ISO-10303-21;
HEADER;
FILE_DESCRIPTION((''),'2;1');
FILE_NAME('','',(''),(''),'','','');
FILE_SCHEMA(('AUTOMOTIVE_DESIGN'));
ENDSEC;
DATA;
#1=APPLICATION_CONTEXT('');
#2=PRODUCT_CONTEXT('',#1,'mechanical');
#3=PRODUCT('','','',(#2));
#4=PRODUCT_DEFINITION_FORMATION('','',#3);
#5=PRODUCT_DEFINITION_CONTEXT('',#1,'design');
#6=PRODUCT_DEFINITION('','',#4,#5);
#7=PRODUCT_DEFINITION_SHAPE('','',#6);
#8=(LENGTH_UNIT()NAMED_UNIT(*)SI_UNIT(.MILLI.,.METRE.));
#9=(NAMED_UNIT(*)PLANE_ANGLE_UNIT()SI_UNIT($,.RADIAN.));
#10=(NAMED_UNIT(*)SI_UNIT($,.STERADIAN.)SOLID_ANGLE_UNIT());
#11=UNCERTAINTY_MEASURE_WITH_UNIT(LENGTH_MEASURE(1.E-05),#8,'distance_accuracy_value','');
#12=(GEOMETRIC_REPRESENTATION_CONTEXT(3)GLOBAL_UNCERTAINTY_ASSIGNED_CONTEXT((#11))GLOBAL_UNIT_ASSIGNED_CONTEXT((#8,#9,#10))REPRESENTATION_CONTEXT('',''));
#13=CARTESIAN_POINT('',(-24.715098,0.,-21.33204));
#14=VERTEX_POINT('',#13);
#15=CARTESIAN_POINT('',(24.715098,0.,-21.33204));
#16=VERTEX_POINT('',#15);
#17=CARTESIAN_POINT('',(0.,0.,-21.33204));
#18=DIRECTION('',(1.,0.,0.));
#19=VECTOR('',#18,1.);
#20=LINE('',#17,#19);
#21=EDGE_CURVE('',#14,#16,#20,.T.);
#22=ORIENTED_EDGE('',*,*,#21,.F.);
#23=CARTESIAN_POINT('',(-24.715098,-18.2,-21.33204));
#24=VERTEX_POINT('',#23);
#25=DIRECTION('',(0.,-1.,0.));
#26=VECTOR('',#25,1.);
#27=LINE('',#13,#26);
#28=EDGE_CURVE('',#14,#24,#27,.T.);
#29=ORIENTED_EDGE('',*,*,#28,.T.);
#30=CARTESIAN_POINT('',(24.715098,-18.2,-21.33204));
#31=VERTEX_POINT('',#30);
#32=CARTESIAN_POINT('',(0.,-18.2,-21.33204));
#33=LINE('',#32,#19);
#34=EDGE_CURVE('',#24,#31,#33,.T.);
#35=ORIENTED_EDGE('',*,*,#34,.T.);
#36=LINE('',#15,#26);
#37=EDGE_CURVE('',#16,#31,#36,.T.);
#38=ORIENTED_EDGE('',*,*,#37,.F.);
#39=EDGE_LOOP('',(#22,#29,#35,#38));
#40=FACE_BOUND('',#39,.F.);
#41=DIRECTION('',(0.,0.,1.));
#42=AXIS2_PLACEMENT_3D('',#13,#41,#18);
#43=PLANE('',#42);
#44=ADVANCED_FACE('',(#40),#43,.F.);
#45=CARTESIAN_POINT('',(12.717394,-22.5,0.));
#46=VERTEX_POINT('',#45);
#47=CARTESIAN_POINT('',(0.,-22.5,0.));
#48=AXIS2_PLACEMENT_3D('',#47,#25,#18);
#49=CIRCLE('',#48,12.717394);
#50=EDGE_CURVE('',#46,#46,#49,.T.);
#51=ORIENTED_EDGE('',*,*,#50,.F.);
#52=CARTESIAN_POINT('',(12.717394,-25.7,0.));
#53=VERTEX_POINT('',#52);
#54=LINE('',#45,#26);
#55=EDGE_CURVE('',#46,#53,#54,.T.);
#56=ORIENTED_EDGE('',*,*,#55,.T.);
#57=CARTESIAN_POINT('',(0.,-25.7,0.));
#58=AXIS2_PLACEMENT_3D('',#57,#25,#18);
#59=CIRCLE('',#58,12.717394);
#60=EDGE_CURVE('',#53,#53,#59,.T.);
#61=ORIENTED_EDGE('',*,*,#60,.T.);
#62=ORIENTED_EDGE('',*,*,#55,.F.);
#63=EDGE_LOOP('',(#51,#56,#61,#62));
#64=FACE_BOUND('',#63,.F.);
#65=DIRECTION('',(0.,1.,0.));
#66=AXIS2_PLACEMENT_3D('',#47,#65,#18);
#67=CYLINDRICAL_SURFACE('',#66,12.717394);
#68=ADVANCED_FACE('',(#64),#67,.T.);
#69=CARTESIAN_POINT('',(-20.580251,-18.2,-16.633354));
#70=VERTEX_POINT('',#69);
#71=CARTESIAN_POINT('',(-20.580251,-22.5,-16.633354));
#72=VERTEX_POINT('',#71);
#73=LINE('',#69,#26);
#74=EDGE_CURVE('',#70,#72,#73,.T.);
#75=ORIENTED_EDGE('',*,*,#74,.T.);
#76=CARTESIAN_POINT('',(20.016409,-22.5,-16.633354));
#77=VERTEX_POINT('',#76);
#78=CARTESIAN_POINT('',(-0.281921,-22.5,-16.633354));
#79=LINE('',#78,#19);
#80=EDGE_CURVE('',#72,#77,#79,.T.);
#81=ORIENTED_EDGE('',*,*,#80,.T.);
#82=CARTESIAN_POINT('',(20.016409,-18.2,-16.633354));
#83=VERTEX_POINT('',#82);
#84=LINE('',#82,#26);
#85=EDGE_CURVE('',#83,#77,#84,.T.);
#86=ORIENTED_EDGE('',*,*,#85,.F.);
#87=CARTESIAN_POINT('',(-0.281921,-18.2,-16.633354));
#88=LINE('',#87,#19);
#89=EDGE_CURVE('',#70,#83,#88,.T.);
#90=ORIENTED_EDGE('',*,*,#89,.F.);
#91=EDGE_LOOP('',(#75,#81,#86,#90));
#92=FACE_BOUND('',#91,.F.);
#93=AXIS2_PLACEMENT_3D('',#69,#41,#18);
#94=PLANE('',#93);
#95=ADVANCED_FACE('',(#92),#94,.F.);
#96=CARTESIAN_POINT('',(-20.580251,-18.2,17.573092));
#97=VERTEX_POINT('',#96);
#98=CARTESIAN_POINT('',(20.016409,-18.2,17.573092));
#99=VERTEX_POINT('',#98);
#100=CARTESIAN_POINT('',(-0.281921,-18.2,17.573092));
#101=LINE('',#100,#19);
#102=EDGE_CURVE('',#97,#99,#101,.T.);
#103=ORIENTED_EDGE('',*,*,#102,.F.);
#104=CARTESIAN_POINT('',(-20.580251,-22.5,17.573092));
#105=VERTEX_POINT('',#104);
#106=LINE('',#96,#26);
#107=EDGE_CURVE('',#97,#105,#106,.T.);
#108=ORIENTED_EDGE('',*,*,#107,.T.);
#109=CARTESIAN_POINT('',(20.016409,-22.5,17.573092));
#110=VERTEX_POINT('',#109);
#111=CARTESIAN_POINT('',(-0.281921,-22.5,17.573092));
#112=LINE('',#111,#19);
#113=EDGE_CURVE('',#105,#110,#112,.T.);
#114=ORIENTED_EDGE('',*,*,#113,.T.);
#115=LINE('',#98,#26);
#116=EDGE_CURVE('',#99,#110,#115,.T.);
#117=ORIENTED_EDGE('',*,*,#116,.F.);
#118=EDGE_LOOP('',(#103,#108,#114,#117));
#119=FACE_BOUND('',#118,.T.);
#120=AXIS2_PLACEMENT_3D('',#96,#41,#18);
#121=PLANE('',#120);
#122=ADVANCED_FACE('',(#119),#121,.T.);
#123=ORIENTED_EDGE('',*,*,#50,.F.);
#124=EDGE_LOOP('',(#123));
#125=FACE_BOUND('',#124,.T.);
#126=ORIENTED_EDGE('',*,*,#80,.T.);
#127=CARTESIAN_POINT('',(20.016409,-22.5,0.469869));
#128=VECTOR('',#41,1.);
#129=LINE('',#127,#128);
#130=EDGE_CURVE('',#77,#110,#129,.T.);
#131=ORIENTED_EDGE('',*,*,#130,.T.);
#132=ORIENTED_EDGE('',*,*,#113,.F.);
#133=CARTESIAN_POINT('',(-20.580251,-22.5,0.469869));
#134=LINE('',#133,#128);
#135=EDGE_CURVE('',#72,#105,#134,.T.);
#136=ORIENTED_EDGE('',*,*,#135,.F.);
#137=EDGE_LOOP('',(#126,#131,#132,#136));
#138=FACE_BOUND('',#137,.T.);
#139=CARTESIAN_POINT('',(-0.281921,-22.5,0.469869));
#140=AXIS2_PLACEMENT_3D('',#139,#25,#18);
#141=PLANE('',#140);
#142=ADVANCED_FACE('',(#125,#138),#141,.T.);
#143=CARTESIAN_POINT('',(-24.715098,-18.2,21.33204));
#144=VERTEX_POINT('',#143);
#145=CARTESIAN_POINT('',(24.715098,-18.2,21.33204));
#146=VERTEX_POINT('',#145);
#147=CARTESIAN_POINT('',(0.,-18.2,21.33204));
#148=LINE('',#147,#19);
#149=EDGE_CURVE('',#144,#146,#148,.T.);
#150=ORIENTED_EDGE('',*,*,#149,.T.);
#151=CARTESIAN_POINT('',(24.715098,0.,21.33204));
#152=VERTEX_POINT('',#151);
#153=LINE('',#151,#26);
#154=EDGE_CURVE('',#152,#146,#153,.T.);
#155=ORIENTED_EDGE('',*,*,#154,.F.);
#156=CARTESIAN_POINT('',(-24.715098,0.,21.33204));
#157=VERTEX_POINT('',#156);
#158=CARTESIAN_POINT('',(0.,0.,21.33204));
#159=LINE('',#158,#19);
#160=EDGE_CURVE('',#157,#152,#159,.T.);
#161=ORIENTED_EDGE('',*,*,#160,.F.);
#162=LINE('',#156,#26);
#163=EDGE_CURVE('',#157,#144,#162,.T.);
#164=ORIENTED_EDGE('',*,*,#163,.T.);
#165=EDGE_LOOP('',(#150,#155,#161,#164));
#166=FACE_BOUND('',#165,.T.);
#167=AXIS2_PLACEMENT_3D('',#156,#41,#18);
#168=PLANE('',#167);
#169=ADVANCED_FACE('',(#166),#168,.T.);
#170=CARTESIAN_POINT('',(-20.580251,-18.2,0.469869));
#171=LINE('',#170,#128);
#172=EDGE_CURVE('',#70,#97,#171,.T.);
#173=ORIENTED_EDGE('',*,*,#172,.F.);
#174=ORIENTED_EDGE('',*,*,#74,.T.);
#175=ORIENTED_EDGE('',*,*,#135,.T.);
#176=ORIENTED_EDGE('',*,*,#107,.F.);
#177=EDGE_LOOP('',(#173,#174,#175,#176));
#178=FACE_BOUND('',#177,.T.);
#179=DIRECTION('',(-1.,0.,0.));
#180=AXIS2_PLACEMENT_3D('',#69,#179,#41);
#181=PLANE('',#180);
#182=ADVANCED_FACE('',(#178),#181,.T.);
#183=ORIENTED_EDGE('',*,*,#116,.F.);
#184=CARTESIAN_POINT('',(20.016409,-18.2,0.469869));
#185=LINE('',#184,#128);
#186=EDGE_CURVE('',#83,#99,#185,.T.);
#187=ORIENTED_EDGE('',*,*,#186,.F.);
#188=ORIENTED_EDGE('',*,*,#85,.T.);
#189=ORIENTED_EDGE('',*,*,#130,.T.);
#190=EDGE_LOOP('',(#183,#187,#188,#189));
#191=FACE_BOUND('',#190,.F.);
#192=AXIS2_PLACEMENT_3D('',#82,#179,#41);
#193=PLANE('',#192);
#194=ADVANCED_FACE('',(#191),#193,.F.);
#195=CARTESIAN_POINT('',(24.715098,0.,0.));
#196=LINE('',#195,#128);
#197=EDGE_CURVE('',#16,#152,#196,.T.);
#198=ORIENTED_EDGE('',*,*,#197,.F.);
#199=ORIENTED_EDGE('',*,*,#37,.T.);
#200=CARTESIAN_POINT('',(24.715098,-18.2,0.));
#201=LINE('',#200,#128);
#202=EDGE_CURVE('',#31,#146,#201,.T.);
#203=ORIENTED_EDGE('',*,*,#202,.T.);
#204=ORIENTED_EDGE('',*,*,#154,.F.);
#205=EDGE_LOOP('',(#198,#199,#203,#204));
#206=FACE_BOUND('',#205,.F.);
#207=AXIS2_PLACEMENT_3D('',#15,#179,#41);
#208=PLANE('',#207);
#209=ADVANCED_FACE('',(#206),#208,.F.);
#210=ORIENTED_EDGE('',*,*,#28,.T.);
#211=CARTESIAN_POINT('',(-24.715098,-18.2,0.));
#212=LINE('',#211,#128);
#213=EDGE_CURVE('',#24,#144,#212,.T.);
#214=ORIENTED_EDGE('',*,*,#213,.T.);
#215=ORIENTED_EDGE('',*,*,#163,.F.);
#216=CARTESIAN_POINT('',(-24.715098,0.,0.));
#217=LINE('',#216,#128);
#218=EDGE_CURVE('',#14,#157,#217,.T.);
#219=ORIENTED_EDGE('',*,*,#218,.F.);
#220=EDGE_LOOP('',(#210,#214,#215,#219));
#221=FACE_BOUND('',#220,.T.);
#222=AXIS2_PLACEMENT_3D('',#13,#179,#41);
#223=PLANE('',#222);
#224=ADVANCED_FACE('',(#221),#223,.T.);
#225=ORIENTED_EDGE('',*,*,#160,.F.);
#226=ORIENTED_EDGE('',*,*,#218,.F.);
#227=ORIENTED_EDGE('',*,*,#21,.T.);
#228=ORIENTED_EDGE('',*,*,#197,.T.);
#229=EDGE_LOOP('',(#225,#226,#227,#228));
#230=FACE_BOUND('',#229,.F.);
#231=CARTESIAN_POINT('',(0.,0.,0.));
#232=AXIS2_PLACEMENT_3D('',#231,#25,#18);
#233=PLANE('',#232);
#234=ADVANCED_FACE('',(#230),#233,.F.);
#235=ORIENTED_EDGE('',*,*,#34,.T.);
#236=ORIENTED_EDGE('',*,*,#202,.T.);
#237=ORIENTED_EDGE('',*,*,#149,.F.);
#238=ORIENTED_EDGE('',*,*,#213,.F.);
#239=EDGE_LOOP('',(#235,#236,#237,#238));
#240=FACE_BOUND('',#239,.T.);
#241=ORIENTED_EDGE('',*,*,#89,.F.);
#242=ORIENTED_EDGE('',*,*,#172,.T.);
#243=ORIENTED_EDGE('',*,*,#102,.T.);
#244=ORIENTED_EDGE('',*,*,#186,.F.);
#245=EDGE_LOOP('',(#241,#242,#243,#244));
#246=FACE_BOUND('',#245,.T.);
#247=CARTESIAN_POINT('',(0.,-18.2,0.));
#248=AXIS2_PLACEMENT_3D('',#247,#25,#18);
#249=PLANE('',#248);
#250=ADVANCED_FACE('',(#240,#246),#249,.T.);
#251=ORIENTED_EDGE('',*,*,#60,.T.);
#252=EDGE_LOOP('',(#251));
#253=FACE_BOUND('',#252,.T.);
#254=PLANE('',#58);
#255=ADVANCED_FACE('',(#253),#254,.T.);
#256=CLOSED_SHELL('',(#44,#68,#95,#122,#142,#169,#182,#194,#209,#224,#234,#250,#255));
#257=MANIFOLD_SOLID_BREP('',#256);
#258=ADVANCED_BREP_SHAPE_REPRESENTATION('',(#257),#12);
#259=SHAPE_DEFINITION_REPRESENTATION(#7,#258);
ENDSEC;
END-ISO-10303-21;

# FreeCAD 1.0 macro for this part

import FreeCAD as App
import Part
import Sketcher

V = App.Vector

doc = App.newDocument("Part")
params = doc.addObject("Spreadsheet::Sheet", "Params")
for row, (alias, value) in enumerate([
    ("pad1_length", "18.2 mm"),
    ("pad2_length", "4.3 mm"),
    ("pad3_length", "3.2 mm"),
], start=1):
    params.set(f"A{row}", alias)
    params.set(f"B{row}", "=" + value)
    params.setAlias(f"B{row}", alias)

body = doc.addObject("PartDesign::Body", "Body")

# Sketch on XZ plane
sketch1 = body.newObject("Sketcher::SketchObject", "Sketch")
sketch1.AttachmentSupport = (doc.getObject("XZ_Plane"), [""])
sketch1.MapMode = "FlatFace"
sketch1.addGeometry(Part.LineSegment(V(-25, 21, 0), V(-25, -21, 0)), False)
sketch1.addGeometry(Part.LineSegment(V(-25, -21, 0), V(25, -21, 0)), False)
sketch1.addGeometry(Part.LineSegment(V(25, -21, 0), V(25, 21, 0)), False)
sketch1.addGeometry(Part.LineSegment(V(25, 21, 0), V(-25, 21, 0)), False)
sketch1.addConstraint(Sketcher.Constraint("Coincident", 0, 2, 1, 1))
sketch1.addConstraint(Sketcher.Constraint("Coincident", 1, 2, 2, 1))
sketch1.addConstraint(Sketcher.Constraint("Coincident", 2, 2, 3, 1))
sketch1.addConstraint(Sketcher.Constraint("Coincident", 3, 2, 0, 1))
sketch1.addConstraint(Sketcher.Constraint("Vertical", 0))
sketch1.addConstraint(Sketcher.Constraint("Horizontal", 1))
sketch1.addConstraint(Sketcher.Constraint("Vertical", 2))
sketch1.addConstraint(Sketcher.Constraint("Horizontal", 3))
sketch1.addConstraint(Sketcher.Constraint("Symmetric", 0, 2, 2, 2, -1, 1))
sketch1.addConstraint(Sketcher.Constraint("DistanceY", 0, 2, 0, 1, 42.66408))
sketch1.addConstraint(Sketcher.Constraint("DistanceX", 0, 2, -1, 1, 24.715098))
pad1 = body.newObject("PartDesign::Pad", "Pad")
pad1.Profile = sketch1
pad1.setExpression("Length", "Params.pad1_length")

# Sketch on XZ plane
sketch2 = body.newObject("Sketcher::SketchObject", "Sketch001")
sketch2.AttachmentSupport = (doc.getObject("XZ_Plane"), [""])
sketch2.MapMode = "FlatFace"
sketch2.AttachmentOffset = App.Placement(V(0, 0, 18.2), App.Rotation())
sketch2.addGeometry(Part.LineSegment(V(-21, 18, 0), V(-21, -17, 0)), False)
sketch2.addGeometry(Part.LineSegment(V(-21, -17, 0), V(20, -17, 0)), False)
sketch2.addGeometry(Part.LineSegment(V(20, -17, 0), V(20, 18, 0)), False)
sketch2.addGeometry(Part.LineSegment(V(20, 18, 0), V(-21, 18, 0)), False)
sketch2.addConstraint(Sketcher.Constraint("Coincident", 0, 2, 1, 1))
sketch2.addConstraint(Sketcher.Constraint("Coincident", 1, 2, 2, 1))
sketch2.addConstraint(Sketcher.Constraint("Coincident", 2, 2, 3, 1))
sketch2.addConstraint(Sketcher.Constraint("Coincident", 3, 2, 0, 1))
sketch2.addConstraint(Sketcher.Constraint("Vertical", 0))
sketch2.addConstraint(Sketcher.Constraint("Horizontal", 1))
sketch2.addConstraint(Sketcher.Constraint("Vertical", 2))
sketch2.addConstraint(Sketcher.Constraint("Horizontal", 3))
sketch2.addConstraint(Sketcher.Constraint("DistanceX", 1, 1, 1, 2, 40.59666))
sketch2.addConstraint(Sketcher.Constraint("DistanceY", 0, 2, 0, 1, 34.206446))
sketch2.addConstraint(Sketcher.Constraint("DistanceX", 0, 2, -1, 1, 20.580251))
sketch2.addConstraint(Sketcher.Constraint("DistanceY", -1, 1, 2, 2, 17.573092))
pad2 = body.newObject("PartDesign::Pad", "Pad001")
pad2.Profile = sketch2
pad2.setExpression("Length", "Params.pad2_length")

# Sketch on XZ plane
sketch3 = body.newObject("Sketcher::SketchObject", "Sketch002")
sketch3.AttachmentSupport = (doc.getObject("XZ_Plane"), [""])
sketch3.MapMode = "FlatFace"
sketch3.AttachmentOffset = App.Placement(V(0, 0, 22.5), App.Rotation())
sketch3.addGeometry(Part.Circle(V(0, 0, 0), V(0, 0, 1), 13), False)
sketch3.addConstraint(Sketcher.Constraint("Coincident", 0, 3, -1, 1))
sketch3.addConstraint(Sketcher.Constraint("Diameter", 0, 25.434788))
pad3 = body.newObject("PartDesign::Pad", "Pad002")
pad3.Profile = sketch3
pad3.setExpression("Length", "Params.pad3_length")

doc.recompute()
